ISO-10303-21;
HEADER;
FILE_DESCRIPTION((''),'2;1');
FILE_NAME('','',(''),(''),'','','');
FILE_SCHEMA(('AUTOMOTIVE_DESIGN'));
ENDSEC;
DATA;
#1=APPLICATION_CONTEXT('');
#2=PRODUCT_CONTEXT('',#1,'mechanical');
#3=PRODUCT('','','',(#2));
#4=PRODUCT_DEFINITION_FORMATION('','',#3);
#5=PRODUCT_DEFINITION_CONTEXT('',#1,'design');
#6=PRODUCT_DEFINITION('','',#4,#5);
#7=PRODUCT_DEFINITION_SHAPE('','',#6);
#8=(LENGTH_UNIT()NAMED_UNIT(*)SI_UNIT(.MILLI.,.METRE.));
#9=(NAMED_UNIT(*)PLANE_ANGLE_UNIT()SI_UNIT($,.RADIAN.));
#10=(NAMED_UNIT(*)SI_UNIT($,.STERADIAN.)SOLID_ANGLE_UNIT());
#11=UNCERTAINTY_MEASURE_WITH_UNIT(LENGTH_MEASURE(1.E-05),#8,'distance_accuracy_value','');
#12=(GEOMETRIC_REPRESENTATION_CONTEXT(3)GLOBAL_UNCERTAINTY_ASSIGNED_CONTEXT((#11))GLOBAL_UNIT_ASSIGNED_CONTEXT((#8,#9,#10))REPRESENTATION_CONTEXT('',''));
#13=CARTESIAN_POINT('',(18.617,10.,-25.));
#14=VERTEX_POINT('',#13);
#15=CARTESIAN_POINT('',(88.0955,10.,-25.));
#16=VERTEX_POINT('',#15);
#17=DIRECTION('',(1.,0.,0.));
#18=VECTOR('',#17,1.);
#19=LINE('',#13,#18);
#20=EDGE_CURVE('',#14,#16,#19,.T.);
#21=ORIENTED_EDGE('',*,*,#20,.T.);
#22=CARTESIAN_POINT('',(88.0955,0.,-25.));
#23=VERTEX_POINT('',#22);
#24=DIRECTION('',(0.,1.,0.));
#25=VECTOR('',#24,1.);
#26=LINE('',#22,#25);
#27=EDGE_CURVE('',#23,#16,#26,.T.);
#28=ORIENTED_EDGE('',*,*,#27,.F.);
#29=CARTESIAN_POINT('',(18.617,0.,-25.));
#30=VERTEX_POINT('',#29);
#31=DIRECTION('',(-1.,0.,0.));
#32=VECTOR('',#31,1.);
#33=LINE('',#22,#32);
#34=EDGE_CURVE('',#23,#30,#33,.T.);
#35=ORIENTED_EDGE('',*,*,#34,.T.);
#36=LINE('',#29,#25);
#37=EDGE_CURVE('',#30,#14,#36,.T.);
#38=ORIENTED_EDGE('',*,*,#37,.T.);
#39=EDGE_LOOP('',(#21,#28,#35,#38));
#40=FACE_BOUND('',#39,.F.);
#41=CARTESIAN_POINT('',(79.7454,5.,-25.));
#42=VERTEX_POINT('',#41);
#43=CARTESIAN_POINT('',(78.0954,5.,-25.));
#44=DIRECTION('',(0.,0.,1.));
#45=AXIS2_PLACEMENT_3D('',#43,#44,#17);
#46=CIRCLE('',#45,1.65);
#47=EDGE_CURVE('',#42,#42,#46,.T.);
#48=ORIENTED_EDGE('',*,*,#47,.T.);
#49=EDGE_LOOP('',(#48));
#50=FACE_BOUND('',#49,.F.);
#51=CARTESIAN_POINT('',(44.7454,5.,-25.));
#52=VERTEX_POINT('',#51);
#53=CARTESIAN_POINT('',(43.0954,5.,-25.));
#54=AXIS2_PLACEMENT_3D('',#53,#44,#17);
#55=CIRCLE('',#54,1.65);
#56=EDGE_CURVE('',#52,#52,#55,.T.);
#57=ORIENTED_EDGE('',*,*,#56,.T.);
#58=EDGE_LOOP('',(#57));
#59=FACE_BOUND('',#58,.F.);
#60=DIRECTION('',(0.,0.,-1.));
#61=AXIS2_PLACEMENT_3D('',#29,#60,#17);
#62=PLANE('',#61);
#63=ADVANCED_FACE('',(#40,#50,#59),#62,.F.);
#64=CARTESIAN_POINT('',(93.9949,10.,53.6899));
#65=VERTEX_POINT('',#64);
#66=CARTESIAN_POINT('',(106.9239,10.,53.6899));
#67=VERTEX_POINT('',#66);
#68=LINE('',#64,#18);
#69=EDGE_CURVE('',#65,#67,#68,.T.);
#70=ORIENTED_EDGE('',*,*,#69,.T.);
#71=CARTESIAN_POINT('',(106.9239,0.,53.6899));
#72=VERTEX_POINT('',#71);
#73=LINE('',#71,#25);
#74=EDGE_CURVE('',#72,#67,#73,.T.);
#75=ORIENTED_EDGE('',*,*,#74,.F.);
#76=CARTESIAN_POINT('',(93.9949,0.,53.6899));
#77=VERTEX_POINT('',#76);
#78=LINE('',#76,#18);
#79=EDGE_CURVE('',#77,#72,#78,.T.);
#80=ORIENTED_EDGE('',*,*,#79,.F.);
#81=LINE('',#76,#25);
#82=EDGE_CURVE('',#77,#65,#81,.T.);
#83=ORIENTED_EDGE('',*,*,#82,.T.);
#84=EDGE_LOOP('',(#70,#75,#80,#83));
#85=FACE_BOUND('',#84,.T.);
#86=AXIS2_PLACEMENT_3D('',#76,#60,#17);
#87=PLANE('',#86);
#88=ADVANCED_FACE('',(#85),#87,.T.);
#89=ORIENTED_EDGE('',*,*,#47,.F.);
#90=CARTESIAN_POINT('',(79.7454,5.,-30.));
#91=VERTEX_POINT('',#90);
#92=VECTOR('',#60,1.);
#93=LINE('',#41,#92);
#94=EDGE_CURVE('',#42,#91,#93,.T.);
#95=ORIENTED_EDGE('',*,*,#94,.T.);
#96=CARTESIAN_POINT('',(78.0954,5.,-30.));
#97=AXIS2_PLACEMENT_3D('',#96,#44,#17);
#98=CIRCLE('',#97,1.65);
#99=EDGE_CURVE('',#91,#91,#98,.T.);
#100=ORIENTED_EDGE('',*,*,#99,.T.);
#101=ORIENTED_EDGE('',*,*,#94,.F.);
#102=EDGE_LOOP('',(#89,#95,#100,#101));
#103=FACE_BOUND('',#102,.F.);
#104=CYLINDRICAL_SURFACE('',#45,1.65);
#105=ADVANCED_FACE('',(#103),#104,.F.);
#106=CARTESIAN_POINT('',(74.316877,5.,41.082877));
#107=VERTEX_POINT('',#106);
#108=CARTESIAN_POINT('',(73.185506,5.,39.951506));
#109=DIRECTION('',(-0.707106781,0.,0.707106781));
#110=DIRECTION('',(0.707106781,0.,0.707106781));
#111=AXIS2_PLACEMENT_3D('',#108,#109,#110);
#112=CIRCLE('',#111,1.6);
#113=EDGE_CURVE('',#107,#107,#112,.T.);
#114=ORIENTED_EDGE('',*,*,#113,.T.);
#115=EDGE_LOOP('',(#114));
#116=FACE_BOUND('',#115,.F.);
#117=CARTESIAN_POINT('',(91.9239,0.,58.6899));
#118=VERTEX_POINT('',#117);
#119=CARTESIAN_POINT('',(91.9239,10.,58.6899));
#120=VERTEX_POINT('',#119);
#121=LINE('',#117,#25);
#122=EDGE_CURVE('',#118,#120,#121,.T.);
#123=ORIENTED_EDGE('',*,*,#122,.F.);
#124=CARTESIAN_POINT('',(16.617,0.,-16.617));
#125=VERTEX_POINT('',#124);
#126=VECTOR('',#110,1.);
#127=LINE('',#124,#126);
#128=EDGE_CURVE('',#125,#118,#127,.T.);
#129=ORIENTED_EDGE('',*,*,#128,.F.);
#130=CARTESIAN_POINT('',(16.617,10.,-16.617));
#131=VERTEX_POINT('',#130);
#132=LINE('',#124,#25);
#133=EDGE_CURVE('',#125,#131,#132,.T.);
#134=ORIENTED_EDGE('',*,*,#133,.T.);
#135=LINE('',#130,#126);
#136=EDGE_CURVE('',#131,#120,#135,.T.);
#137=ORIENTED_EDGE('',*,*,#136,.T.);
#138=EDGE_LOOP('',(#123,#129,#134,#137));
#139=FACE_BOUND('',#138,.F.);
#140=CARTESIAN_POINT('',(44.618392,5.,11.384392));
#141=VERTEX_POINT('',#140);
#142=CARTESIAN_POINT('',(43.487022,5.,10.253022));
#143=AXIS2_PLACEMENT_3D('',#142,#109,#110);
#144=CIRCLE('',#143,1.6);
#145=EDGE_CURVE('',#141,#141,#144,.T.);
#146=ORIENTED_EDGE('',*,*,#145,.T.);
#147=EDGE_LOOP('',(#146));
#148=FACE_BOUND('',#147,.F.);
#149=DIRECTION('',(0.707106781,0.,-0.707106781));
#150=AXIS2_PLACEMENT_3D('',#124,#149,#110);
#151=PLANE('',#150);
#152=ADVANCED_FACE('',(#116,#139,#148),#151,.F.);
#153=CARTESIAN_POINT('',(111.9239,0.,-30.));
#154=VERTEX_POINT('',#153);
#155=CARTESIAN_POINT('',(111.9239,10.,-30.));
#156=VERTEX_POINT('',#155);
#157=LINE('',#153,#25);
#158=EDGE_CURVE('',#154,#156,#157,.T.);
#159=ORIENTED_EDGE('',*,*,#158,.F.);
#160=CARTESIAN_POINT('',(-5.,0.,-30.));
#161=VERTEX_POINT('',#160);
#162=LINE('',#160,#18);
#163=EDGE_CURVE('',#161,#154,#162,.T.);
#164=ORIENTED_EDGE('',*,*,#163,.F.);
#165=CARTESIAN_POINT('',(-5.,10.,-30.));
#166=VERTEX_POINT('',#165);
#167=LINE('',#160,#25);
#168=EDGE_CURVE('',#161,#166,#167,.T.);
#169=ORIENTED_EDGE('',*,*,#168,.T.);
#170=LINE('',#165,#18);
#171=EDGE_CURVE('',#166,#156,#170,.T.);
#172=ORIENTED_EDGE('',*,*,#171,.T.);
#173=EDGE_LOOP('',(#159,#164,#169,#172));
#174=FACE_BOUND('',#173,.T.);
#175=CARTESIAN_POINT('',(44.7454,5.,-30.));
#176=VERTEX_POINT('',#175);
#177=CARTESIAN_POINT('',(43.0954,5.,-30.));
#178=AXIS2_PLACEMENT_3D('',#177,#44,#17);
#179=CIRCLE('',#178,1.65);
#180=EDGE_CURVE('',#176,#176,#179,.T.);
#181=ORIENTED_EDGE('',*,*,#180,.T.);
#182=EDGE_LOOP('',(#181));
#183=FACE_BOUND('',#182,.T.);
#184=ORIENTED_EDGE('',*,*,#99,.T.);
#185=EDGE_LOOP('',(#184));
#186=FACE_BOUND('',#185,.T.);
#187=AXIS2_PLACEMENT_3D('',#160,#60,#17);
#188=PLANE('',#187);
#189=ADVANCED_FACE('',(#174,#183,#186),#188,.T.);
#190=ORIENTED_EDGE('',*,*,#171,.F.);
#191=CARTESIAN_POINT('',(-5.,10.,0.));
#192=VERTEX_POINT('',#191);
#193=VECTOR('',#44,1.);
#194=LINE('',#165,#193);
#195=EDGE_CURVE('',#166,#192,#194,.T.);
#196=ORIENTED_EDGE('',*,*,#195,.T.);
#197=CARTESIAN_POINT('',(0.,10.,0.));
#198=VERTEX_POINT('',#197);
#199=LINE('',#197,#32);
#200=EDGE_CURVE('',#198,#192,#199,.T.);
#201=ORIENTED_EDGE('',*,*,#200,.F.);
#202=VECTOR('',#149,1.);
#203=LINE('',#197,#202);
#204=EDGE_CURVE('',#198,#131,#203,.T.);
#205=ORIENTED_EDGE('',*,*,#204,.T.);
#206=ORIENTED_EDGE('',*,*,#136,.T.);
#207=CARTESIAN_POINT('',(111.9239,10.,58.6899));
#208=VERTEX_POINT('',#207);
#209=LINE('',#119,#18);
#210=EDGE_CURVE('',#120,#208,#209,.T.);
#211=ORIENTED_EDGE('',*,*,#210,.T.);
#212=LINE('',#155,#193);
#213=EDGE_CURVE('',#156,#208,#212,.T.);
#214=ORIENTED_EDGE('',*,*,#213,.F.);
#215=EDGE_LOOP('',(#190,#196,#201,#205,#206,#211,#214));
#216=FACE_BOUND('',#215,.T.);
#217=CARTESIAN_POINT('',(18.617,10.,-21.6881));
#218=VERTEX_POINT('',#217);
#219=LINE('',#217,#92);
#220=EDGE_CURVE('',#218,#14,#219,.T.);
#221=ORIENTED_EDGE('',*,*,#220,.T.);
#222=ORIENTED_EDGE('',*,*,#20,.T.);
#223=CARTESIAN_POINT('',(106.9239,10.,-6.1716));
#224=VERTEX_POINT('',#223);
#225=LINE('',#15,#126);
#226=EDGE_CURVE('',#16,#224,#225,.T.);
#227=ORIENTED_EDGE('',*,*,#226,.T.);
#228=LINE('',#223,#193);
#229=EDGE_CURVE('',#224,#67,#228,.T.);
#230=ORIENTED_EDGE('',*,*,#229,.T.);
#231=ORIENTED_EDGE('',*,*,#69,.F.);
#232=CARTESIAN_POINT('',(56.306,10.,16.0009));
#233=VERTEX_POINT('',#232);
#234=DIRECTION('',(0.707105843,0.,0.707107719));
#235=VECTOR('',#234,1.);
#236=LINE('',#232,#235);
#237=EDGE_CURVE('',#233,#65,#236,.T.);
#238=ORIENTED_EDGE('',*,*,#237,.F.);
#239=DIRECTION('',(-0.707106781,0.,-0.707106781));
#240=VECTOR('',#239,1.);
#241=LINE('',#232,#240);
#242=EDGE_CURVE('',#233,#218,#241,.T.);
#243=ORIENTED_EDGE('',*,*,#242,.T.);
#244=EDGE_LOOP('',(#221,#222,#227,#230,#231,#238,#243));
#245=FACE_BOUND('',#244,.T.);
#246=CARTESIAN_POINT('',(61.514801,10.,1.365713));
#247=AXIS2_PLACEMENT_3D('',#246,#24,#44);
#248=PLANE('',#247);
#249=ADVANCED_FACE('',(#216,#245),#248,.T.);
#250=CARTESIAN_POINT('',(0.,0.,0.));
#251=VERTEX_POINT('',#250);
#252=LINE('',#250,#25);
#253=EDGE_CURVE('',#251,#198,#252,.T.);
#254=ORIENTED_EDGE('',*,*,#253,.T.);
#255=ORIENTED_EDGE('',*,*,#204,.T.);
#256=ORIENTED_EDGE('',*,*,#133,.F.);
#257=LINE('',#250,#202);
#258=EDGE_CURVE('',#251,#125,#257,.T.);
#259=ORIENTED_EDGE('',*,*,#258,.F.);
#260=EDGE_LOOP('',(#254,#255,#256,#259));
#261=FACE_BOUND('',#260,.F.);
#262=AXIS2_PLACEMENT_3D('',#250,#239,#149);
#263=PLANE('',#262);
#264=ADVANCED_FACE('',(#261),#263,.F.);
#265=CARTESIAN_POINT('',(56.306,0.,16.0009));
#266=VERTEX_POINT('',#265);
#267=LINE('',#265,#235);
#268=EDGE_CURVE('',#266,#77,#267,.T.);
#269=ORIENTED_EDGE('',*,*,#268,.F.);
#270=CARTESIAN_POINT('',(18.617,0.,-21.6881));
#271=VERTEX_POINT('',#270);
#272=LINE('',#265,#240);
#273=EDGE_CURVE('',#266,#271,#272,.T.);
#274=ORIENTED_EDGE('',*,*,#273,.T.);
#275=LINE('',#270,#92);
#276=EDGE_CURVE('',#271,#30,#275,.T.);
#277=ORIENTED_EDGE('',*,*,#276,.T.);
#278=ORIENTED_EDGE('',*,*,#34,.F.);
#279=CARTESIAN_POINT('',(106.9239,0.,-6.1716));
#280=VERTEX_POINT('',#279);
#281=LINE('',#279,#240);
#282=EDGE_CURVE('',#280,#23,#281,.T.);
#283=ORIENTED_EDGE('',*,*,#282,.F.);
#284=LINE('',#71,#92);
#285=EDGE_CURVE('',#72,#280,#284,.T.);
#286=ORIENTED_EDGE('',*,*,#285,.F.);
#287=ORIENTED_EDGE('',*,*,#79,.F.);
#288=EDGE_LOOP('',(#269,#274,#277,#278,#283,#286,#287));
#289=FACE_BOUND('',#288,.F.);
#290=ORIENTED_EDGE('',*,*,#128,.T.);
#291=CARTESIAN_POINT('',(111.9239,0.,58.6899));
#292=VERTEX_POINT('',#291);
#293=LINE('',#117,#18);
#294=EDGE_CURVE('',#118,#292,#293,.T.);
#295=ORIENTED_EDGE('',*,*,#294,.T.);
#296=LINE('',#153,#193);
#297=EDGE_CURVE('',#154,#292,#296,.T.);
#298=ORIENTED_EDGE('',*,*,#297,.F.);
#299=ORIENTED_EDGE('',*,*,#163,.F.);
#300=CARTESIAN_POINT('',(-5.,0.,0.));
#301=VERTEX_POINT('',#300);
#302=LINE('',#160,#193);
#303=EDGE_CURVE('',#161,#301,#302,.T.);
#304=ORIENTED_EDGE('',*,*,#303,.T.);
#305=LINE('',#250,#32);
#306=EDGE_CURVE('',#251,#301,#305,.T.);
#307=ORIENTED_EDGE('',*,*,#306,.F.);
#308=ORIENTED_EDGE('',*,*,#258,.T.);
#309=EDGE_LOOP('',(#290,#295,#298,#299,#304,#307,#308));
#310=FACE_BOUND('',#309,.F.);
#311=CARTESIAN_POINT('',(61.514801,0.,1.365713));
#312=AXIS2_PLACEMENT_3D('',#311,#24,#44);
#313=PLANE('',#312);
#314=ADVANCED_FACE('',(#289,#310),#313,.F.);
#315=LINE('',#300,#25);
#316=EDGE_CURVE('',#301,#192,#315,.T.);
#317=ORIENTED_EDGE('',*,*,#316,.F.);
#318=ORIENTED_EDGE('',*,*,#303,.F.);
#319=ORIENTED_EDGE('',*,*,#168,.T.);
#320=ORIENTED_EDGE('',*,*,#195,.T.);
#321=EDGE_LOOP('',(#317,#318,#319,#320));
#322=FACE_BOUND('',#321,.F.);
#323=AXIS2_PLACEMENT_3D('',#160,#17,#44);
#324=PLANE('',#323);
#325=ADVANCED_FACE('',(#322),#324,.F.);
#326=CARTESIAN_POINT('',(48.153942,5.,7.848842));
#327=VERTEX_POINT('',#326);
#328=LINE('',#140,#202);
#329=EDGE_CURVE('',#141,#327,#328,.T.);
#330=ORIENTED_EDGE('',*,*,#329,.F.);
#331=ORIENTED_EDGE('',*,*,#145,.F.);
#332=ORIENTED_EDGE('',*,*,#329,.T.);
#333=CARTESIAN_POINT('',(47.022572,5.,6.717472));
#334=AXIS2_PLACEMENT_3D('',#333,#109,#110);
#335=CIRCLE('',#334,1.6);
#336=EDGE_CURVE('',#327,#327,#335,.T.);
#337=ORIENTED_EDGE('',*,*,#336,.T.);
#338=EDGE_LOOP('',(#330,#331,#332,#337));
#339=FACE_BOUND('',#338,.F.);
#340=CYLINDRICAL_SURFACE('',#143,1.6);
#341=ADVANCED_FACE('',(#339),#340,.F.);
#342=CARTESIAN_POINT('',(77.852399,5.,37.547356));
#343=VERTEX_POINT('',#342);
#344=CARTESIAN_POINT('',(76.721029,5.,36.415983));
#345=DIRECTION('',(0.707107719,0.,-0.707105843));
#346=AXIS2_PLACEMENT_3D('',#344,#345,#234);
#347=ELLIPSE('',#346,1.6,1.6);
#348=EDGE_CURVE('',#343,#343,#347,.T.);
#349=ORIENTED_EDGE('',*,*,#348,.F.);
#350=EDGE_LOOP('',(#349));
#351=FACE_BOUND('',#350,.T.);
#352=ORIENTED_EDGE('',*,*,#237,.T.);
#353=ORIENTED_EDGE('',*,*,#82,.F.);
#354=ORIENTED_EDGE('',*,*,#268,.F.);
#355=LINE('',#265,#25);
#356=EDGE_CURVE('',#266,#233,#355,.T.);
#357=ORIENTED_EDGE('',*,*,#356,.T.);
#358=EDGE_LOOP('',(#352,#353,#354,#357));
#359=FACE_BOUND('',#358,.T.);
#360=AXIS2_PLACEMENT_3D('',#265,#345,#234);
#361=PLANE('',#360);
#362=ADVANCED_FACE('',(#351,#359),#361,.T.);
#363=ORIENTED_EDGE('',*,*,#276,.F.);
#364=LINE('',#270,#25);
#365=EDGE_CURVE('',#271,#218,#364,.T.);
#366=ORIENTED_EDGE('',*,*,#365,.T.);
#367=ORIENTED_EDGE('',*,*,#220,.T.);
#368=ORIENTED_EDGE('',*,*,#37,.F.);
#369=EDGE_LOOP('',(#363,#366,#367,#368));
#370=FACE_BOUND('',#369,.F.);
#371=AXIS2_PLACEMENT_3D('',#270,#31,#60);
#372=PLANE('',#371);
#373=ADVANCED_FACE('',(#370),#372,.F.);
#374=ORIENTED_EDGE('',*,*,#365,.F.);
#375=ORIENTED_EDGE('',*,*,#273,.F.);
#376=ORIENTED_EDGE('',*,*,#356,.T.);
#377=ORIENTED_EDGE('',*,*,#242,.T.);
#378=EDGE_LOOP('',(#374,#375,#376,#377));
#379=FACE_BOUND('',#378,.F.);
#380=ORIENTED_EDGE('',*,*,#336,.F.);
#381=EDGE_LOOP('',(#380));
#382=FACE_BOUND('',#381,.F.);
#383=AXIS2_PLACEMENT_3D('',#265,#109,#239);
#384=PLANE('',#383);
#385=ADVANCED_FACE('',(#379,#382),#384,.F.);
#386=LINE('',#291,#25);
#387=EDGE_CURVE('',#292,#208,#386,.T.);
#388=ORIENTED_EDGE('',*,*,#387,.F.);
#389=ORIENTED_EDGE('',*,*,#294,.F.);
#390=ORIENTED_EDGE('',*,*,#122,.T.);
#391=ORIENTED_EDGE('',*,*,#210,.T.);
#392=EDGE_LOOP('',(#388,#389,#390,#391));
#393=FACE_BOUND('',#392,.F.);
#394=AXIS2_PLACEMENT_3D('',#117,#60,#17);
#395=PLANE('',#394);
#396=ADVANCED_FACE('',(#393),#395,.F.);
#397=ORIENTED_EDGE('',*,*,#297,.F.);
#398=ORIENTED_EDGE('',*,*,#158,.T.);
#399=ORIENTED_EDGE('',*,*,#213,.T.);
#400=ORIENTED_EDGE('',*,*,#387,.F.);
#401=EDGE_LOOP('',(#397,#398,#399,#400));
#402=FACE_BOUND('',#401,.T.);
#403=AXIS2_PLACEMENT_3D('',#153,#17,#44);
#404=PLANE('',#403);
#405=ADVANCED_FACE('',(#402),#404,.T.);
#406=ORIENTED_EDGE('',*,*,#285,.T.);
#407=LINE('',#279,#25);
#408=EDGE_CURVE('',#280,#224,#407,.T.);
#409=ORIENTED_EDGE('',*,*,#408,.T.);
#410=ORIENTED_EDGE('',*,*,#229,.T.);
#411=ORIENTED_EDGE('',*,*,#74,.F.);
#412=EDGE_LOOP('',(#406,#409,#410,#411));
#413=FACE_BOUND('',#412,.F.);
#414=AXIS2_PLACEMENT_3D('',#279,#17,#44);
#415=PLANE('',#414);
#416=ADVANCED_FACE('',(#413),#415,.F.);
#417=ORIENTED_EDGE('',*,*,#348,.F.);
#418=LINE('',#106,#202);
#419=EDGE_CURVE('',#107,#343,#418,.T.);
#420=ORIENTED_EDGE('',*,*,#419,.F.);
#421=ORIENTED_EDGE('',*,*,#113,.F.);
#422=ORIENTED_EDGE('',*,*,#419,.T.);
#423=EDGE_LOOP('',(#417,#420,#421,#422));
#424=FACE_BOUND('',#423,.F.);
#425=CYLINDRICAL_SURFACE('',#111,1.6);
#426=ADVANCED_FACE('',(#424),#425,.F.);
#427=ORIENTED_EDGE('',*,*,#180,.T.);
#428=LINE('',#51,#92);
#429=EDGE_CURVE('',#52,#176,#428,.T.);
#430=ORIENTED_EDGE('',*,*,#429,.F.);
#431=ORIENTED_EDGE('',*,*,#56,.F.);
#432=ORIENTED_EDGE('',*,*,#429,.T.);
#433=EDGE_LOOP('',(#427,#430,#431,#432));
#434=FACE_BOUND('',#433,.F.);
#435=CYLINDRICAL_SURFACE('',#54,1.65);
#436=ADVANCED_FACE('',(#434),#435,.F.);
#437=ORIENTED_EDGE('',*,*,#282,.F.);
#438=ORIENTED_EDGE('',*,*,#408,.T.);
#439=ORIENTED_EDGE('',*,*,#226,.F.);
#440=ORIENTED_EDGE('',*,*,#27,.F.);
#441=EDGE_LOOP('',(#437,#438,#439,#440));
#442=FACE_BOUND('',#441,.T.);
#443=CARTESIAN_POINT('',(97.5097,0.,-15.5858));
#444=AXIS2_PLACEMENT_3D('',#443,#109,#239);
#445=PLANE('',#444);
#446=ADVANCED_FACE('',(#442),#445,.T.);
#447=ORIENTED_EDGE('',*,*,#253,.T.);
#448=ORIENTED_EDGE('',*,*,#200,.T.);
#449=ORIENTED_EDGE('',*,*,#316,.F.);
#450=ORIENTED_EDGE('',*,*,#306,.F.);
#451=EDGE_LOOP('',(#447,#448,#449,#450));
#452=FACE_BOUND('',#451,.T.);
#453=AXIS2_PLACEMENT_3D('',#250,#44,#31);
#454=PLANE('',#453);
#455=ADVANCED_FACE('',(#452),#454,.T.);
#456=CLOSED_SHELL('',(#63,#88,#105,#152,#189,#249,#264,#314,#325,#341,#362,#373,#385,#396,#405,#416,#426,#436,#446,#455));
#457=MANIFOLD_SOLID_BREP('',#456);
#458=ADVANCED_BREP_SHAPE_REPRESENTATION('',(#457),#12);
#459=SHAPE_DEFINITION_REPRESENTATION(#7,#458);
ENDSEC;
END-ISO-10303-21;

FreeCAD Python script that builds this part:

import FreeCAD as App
import Part
import Sketcher
from FreeCAD import Vector
Q = App.Units.Quantity


def add_polygon(sketch, points):
    """Adds a closed chain of lines whose ends are joined by coincident constraints."""
    first, n = sketch.GeometryCount, len(points)
    for a, b in zip(points, points[1:] + points[:1]):
        sketch.addGeometry(Part.LineSegment(App.Vector(*a, 0), App.Vector(*b, 0)), False)
    for i in range(n):
        sketch.addConstraint(Sketcher.Constraint("Coincident", first + i, 2, first + (i + 1) % n, 1))

doc = App.newDocument("Part")
body = doc.addObject("PartDesign::Body", "Body")

sketch1 = body.newObject("Sketcher::SketchObject", "Sketch")
sketch1.AttachmentSupport = (doc.getObject("XZ_Plane"), [""])
sketch1.MapMode = "FlatFace"
add_polygon(sketch1, [(-5, 0), (-5, -30), (111.9, -30), (111.9, 58.7), (91.9, 58.7), (16.6, -16.6), (0, 0)])
add_polygon(sketch1, [(18.6, -21.7), (56.3, 16), (94, 53.7), (106.9, 53.7), (106.9, -6.2), (88.1, -25), (18.6, -25)])
sketch1.addConstraint([
    Sketcher.Constraint("Vertical", 0),
    Sketcher.Constraint("Horizontal", 1),
    Sketcher.Constraint("Vertical", 2),
    Sketcher.Constraint("Horizontal", 3),
    Sketcher.Constraint("Horizontal", 6),
    Sketcher.Constraint("Horizontal", 9),
    Sketcher.Constraint("Vertical", 10),
    Sketcher.Constraint("Horizontal", 12),
    Sketcher.Constraint("Vertical", 13),
    Sketcher.Constraint("Coincident", 5, 2, -1, 1),
    Sketcher.Constraint("Perpendicular", 4, 5),
    Sketcher.Constraint("Perpendicular", 5, 7),
    Sketcher.Constraint("Parallel", 7, 8),
    Sketcher.Constraint("Parallel", 8, 11),
    Sketcher.Constraint("Equal", 7, 8),
    Sketcher.Constraint("DistanceX", 3, 2, 3, 1, Q("20 mm")),
    Sketcher.Constraint("DistanceX", 6, 2, 6, 1, Q("5 mm")),
    Sketcher.Constraint("DistanceY", 0, 2, 0, 1, Q("30 mm")),
    Sketcher.Constraint("Angle", 4, Q("-135 deg")),
    Sketcher.Constraint("DistanceY", 11, 2, -1, 1, Q("25 mm")),
    Sketcher.Constraint("DistanceY", 8, 2, 3, 2, Q("5 mm")),
    Sketcher.Constraint("DistanceX", 9, 2, 2, 2, Q("5 mm")),
    Sketcher.Constraint("DistanceX", 4, 2, 12, 2, Q("2 mm")),
    Sketcher.Constraint("Distance", 4, Q("106.5 mm")),
    Sketcher.Constraint("Distance", 5, Q("23.5 mm")),
    Sketcher.Constraint("DistanceX", 9, 1, 9, 2, Q("12.929 mm")),
    Sketcher.Constraint("DistanceX", 12, 2, 12, 1, Q("69.4785 mm")),
])
pad1 = body.newObject("PartDesign::Pad", "Pad")
pad1.Profile = sketch1
pad1.Length = 10
pad1.Reversed = True

sketch2 = body.newObject("Sketcher::SketchObject", "Sketch001")
sketch2.Placement = App.Placement(Vector(54.2704, 3.5, 21.0364), App.Rotation(Vector(0.707106781, 0, 0.707106781), Vector(0, 0.999999999, 0), Vector(-0.707106781, 0, 0.707106781), "ZXY"))
sketch2.addGeometry([
    Part.Circle(Vector(-15.2, 1.5, 0), Vector(0, 0, 1), 1.6),
    Part.Circle(Vector(26.7, 1.5, 0), Vector(0, 0, 1), 1.6),
], False)
sketch2.addConstraint([
    Sketcher.Constraint("Equal", 0, 1),
    Sketcher.Constraint("Horizontal", 0, 3, 1, 3),
    Sketcher.Constraint("Diameter", 0, Q("3.2 mm")),
    Sketcher.Constraint("DistanceX", 0, 3, 1, 3, Q("42 mm")),
    Sketcher.Constraint("DistanceY", -1, 1, 0, 3, Q("1.5 mm")),
    Sketcher.Constraint("DistanceX", 0, 3, -1, 1, Q("15.25 mm")),
])
pocket1 = body.newObject("PartDesign::Pocket", "Pocket")
pocket1.Profile = sketch2
pocket1.Type = "UpToFirst"

sketch3 = body.newObject("Sketcher::SketchObject", "Sketch002")
sketch3.AttachmentSupport = (doc.getObject("XY_Plane"), [""])
sketch3.MapMode = "FlatFace"
sketch3.AttachmentOffset = App.Placement(Vector(0, 0, -25), App.Rotation())
sketch3.addGeometry([
    Part.Circle(Vector(43.1, 5, 0), Vector(0, 0, 1), 1.6),
    Part.Circle(Vector(78.1, 5, 0), Vector(0, 0, 1), 1.6),
], False)
sketch3.addConstraint([
    Sketcher.Constraint("Equal", 0, 1),
    Sketcher.Constraint("Horizontal", 0, 3, 1, 3),
    Sketcher.Constraint("Diameter", 0, Q("3.3 mm")),
    Sketcher.Constraint("DistanceY", -1, 1, 0, 3, Q("5 mm")),
    Sketcher.Constraint("DistanceX", 0, 3, 1, 3, Q("35 mm")),
    Sketcher.Constraint("DistanceX", -1, 1, 0, 3, Q("43.0954 mm")),
])
pocket2 = body.newObject("PartDesign::Pocket", "Pocket001")
pocket2.Profile = sketch3
pocket2.Type = "UpToFirst"

doc.recompute()
